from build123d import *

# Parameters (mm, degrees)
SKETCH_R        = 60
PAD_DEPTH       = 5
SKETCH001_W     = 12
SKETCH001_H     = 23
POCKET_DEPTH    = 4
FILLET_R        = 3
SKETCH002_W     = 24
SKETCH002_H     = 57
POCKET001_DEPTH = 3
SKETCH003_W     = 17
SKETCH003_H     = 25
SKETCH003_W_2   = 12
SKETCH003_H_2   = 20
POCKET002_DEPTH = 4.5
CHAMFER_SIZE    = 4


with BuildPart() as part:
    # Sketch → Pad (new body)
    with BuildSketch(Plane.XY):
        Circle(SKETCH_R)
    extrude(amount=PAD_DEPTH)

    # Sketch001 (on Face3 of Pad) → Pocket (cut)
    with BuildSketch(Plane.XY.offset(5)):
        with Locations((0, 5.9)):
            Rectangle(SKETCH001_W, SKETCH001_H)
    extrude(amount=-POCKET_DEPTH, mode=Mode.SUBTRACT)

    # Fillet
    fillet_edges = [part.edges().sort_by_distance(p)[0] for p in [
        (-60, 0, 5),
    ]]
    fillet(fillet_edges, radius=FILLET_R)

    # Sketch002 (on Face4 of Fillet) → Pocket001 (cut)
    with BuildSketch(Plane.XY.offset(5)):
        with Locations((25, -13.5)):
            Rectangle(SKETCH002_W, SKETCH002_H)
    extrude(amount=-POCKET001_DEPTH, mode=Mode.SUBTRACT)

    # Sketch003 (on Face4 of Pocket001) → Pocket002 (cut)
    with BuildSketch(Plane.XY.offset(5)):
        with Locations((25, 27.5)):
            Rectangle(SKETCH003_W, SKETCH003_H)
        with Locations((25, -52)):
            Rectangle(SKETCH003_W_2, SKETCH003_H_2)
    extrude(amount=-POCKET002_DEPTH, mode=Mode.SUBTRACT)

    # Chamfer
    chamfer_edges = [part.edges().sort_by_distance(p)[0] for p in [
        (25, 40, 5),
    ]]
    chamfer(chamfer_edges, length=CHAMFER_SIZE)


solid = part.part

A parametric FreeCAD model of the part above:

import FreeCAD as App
import Part
import Sketcher


def edges_at(feature, points):
    """Names of the edges that pass closest to the given points."""
    edges = feature.Shape.Edges
    near = lambda p: min(range(len(edges)), key=lambda i: edges[i].distToShape(Part.Vertex(*p))[0])
    return sorted({f"Edge{near(p) + 1}" for p in points})

doc = App.newDocument("Part")
params = doc.addObject("Spreadsheet::Sheet", "Params")
for row, (alias, value) in enumerate([
    ("sketch1_diameter", "120 mm"),
    ("pad1_length", "5 mm"),
    ("sketch2_width", "12 mm"),
    ("sketch2_height", "23 mm"),
    ("pocket1_length", "4 mm"),
    ("fillet_radius", "3 mm"),
    ("sketch3_width", "24 mm"),
    ("sketch3_height", "57 mm"),
    ("pocket2_length", "3 mm"),
    ("sketch4_width", "17 mm"),
    ("sketch4_width2", "12 mm"),
    ("sketch4_height", "25 mm"),
    ("sketch4_height2", "20 mm"),
    ("pocket3_length", "4.5 mm"),
    ("chamfer_size", "4 mm"),
], start=1):
    params.set(f"A{row}", alias)
    params.set(f"B{row}", "=" + value)
    params.setAlias(f"B{row}", alias)

body = doc.addObject("PartDesign::Body", "Body")

sketch1 = body.newObject("Sketcher::SketchObject", "Sketch")
sketch1.AttachmentSupport = (doc.getObject("XY_Plane"), [""])
sketch1.MapMode = "FlatFace"
sketch1.addGeometry(Part.Circle(App.Vector(0, 0, 0), App.Vector(0, 0, 1), 60), False)
sketch1.addConstraint(Sketcher.Constraint("Coincident", 0, 3, -1, 1))
sketch1.addConstraint(Sketcher.Constraint("Diameter", 0, 120.0))
sketch1.setExpression("Constraints[1]", "Params.sketch1_diameter")
pad1 = body.newObject("PartDesign::Pad", "Pad")
pad1.Profile = sketch1
pad1.setExpression("Length", "Params.pad1_length")

sketch2 = body.newObject("Sketcher::SketchObject", "Sketch001")
sketch2.AttachmentSupport = (doc.getObject("XY_Plane"), [""])
sketch2.MapMode = "FlatFace"
sketch2.AttachmentOffset = App.Placement(App.Vector(0, 0, 5), App.Rotation())
sketch2.addGeometry(Part.LineSegment(App.Vector(-6, 17.4, 0), App.Vector(-6, -5.6, 0)), False)
sketch2.addGeometry(Part.LineSegment(App.Vector(-6, -5.6, 0), App.Vector(6, -5.6, 0)), False)
sketch2.addGeometry(Part.LineSegment(App.Vector(6, -5.6, 0), App.Vector(6, 17.4, 0)), False)
sketch2.addGeometry(Part.LineSegment(App.Vector(6, 17.4, 0), App.Vector(-6, 17.4, 0)), False)
sketch2.addConstraint(Sketcher.Constraint("Coincident", 0, 2, 1, 1))
sketch2.addConstraint(Sketcher.Constraint("Coincident", 1, 2, 2, 1))
sketch2.addConstraint(Sketcher.Constraint("Coincident", 2, 2, 3, 1))
sketch2.addConstraint(Sketcher.Constraint("Coincident", 3, 2, 0, 1))
sketch2.addConstraint(Sketcher.Constraint("Vertical", 0))
sketch2.addConstraint(Sketcher.Constraint("Horizontal", 1))
sketch2.addConstraint(Sketcher.Constraint("Vertical", 2))
sketch2.addConstraint(Sketcher.Constraint("Horizontal", 3))
sketch2.addConstraint(Sketcher.Constraint("DistanceX", 1, 1, 1, 2, 12.0))
sketch2.addConstraint(Sketcher.Constraint("DistanceY", 0, 2, 0, 1, 23.0))
sketch2.addConstraint(Sketcher.Constraint("DistanceX", 0, 2, -1, 1, 6.0))
sketch2.addConstraint(Sketcher.Constraint("DistanceY", 0, 2, -1, 1, 5.6))
sketch2.setExpression("Constraints[8]", "Params.sketch2_width")
sketch2.setExpression("Constraints[9]", "Params.sketch2_height")
pocket1 = body.newObject("PartDesign::Pocket", "Pocket")
pocket1.Profile = sketch2
pocket1.setExpression("Length", "Params.pocket1_length")
doc.recompute()

fillet = body.newObject("PartDesign::Fillet", "Fillet")
fillet.Base = (pocket1, edges_at(pocket1, [(-60, 0, 5)]))
fillet.setExpression("Radius", "Params.fillet_radius")

sketch3 = body.newObject("Sketcher::SketchObject", "Sketch002")
sketch3.AttachmentSupport = (doc.getObject("XY_Plane"), [""])
sketch3.MapMode = "FlatFace"
sketch3.AttachmentOffset = App.Placement(App.Vector(0, 0, 5), App.Rotation())
sketch3.addGeometry(Part.LineSegment(App.Vector(13, 15, 0), App.Vector(13, -42, 0)), False)
sketch3.addGeometry(Part.LineSegment(App.Vector(13, -42, 0), App.Vector(37, -42, 0)), False)
sketch3.addGeometry(Part.LineSegment(App.Vector(37, -42, 0), App.Vector(37, 15, 0)), False)
sketch3.addGeometry(Part.LineSegment(App.Vector(37, 15, 0), App.Vector(13, 15, 0)), False)
sketch3.addConstraint(Sketcher.Constraint("Coincident", 0, 2, 1, 1))
sketch3.addConstraint(Sketcher.Constraint("Coincident", 1, 2, 2, 1))
sketch3.addConstraint(Sketcher.Constraint("Coincident", 2, 2, 3, 1))
sketch3.addConstraint(Sketcher.Constraint("Coincident", 3, 2, 0, 1))
sketch3.addConstraint(Sketcher.Constraint("Vertical", 0))
sketch3.addConstraint(Sketcher.Constraint("Horizontal", 1))
sketch3.addConstraint(Sketcher.Constraint("Vertical", 2))
sketch3.addConstraint(Sketcher.Constraint("Horizontal", 3))
sketch3.addConstraint(Sketcher.Constraint("DistanceX", 1, 1, 1, 2, 24.0))
sketch3.addConstraint(Sketcher.Constraint("DistanceY", 0, 2, 0, 1, 57.0))
sketch3.addConstraint(Sketcher.Constraint("DistanceX", -1, 1, 0, 2, 13.0))
sketch3.addConstraint(Sketcher.Constraint("DistanceY", 0, 2, -1, 1, 42.0))
sketch3.setExpression("Constraints[8]", "Params.sketch3_width")
sketch3.setExpression("Constraints[9]", "Params.sketch3_height")
pocket2 = body.newObject("PartDesign::Pocket", "Pocket001")
pocket2.Profile = sketch3
pocket2.setExpression("Length", "Params.pocket2_length")

sketch4 = body.newObject("Sketcher::SketchObject", "Sketch003")
sketch4.AttachmentSupport = (doc.getObject("XY_Plane"), [""])
sketch4.MapMode = "FlatFace"
sketch4.AttachmentOffset = App.Placement(App.Vector(0, 0, 5), App.Rotation())
sketch4.addGeometry(Part.LineSegment(App.Vector(16.5, 40, 0), App.Vector(16.5, 15, 0)), False)
sketch4.addGeometry(Part.LineSegment(App.Vector(16.5, 15, 0), App.Vector(33.5, 15, 0)), False)
sketch4.addGeometry(Part.LineSegment(App.Vector(33.5, 15, 0), App.Vector(33.5, 40, 0)), False)
sketch4.addGeometry(Part.LineSegment(App.Vector(33.5, 40, 0), App.Vector(16.5, 40, 0)), False)
sketch4.addGeometry(Part.LineSegment(App.Vector(19, -42, 0), App.Vector(19, -62, 0)), False)
sketch4.addGeometry(Part.LineSegment(App.Vector(19, -62, 0), App.Vector(31, -62, 0)), False)
sketch4.addGeometry(Part.LineSegment(App.Vector(31, -62, 0), App.Vector(31, -42, 0)), False)
sketch4.addGeometry(Part.LineSegment(App.Vector(31, -42, 0), App.Vector(19, -42, 0)), False)
sketch4.addConstraint(Sketcher.Constraint("Coincident", 0, 2, 1, 1))
sketch4.addConstraint(Sketcher.Constraint("Coincident", 1, 2, 2, 1))
sketch4.addConstraint(Sketcher.Constraint("Coincident", 2, 2, 3, 1))
sketch4.addConstraint(Sketcher.Constraint("Coincident", 3, 2, 0, 1))
sketch4.addConstraint(Sketcher.Constraint("Coincident", 4, 2, 5, 1))
sketch4.addConstraint(Sketcher.Constraint("Coincident", 5, 2, 6, 1))
sketch4.addConstraint(Sketcher.Constraint("Coincident", 6, 2, 7, 1))
sketch4.addConstraint(Sketcher.Constraint("Coincident", 7, 2, 4, 1))
sketch4.addConstraint(Sketcher.Constraint("Vertical", 0))
sketch4.addConstraint(Sketcher.Constraint("Horizontal", 1))
sketch4.addConstraint(Sketcher.Constraint("Vertical", 2))
sketch4.addConstraint(Sketcher.Constraint("Horizontal", 3))
sketch4.addConstraint(Sketcher.Constraint("Vertical", 4))
sketch4.addConstraint(Sketcher.Constraint("Horizontal", 5))
sketch4.addConstraint(Sketcher.Constraint("Vertical", 6))
sketch4.addConstraint(Sketcher.Constraint("Horizontal", 7))
sketch4.addConstraint(Sketcher.Constraint("DistanceX", 1, 1, 1, 2, 17.0))
sketch4.addConstraint(Sketcher.Constraint("DistanceX", 5, 1, 5, 2, 12.0))
sketch4.addConstraint(Sketcher.Constraint("DistanceY", 0, 2, 0, 1, 25.0))
sketch4.addConstraint(Sketcher.Constraint("DistanceY", 4, 2, 4, 1, 20.0))
sketch4.addConstraint(Sketcher.Constraint("DistanceY", -1, 1, 0, 2, 15.0))
sketch4.addConstraint(Sketcher.Constraint("DistanceX", -1, 1, 4, 2, 19.0))
sketch4.addConstraint(Sketcher.Constraint("DistanceY", 4, 2, -1, 1, 62.0))
sketch4.addConstraint(Sketcher.Constraint("DistanceX", -1, 1, 0, 2, 16.5))
sketch4.setExpression("Constraints[16]", "Params.sketch4_width")
sketch4.setExpression("Constraints[17]", "Params.sketch4_width2")
sketch4.setExpression("Constraints[18]", "Params.sketch4_height")
sketch4.setExpression("Constraints[19]", "Params.sketch4_height2")
pocket3 = body.newObject("PartDesign::Pocket", "Pocket002")
pocket3.Profile = sketch4
pocket3.setExpression("Length", "Params.pocket3_length")
doc.recompute()

chamfer = body.newObject("PartDesign::Chamfer", "Chamfer")
chamfer.Base = (pocket3, edges_at(pocket3, [(25, 40, 5)]))
chamfer.setExpression("Size", "Params.chamfer_size")

doc.recompute()
